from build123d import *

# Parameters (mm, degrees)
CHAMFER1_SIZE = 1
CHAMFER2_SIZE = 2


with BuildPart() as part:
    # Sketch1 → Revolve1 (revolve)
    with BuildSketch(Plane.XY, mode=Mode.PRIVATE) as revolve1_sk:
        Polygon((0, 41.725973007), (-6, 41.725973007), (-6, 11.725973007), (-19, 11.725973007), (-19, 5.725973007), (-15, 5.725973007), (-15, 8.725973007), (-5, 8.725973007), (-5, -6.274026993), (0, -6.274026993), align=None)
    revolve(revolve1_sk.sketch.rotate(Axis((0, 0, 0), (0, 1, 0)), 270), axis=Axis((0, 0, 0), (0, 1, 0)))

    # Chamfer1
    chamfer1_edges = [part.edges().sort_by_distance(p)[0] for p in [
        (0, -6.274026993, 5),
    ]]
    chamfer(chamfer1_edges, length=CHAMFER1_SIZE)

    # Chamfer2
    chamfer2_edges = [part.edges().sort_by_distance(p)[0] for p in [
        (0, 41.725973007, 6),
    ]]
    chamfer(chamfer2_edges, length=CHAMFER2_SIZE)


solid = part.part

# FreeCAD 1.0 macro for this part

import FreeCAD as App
import Part
import Sketcher
Q = App.Units.Quantity


def edges_at(feature, points):
    """Names of the edges that pass closest to the given points."""
    edges = feature.Shape.Edges
    near = lambda p: min(range(len(edges)), key=lambda i: edges[i].distToShape(Part.Vertex(*p))[0])
    return sorted({f"Edge{near(p) + 1}" for p in points})


def add_polygon(sketch, points):
    """Adds a closed chain of lines whose ends are joined by coincident constraints."""
    first, n = sketch.GeometryCount, len(points)
    for a, b in zip(points, points[1:] + points[:1]):
        sketch.addGeometry(Part.LineSegment(App.Vector(*a, 0), App.Vector(*b, 0)), False)
    for i in range(n):
        sketch.addConstraint(Sketcher.Constraint("Coincident", first + i, 2, first + (i + 1) % n, 1))

doc = App.newDocument("Part")
body = doc.addObject("PartDesign::Body", "Body")

# Sketch on XY plane
sketch1 = doc.addObject("Sketcher::SketchObject", "Sketch")
body.addObject(sketch1)
sketch1.AttachmentSupport = (doc.XY_Plane, [""])
sketch1.MapMode = "FlatFace"
add_polygon(sketch1, [(0, 41.725973), (-6, 41.725973), (-6, 11.725973), (-19, 11.725973), (-19, 5.725973), (-15, 5.725973), (-15, 8.725973), (-5, 8.725973), (-5, -6.274027), (0, -6.274027)])  # lines 0-9
sketch1.addConstraint([
    Sketcher.Constraint("Horizontal", 0),
    Sketcher.Constraint("Vertical", 1),
    Sketcher.Constraint("Horizontal", 2),
    Sketcher.Constraint("Vertical", 3),
    Sketcher.Constraint("Horizontal", 4),
    Sketcher.Constraint("Vertical", 5),
    Sketcher.Constraint("Horizontal", 6),
    Sketcher.Constraint("Vertical", 7),
    Sketcher.Constraint("Horizontal", 8),
    Sketcher.Constraint("Vertical", 9),
    Sketcher.Constraint("PointOnObject", 8, 2, -2),
    Sketcher.Constraint("Equal", 0, 3),
    Sketcher.Constraint("DistanceX", 0, 2, 0, 1, Q("6 mm")),
    Sketcher.Constraint("DistanceX", 2, 2, 2, 1, Q("13 mm")),
    Sketcher.Constraint("DistanceX", 4, 1, 4, 2, Q("4 mm")),
    Sketcher.Constraint("DistanceX", 6, 1, 6, 2, Q("10 mm")),
    Sketcher.Constraint("DistanceY", 1, 2, 1, 1, Q("30 mm")),
    Sketcher.Constraint("DistanceY", 5, 1, 5, 2, Q("3 mm")),
    Sketcher.Constraint("DistanceY", 7, 2, 7, 1, Q("15 mm")),
    Sketcher.Constraint("DistanceY", -1, 1, 0, 2, Q("41.725973 mm")),
])
revolution = doc.addObject("PartDesign::Revolution", "Revolution")
body.addObject(revolution)
revolution.Profile = sketch1
revolution.ReferenceAxis = (sketch1, ["V_Axis"])
revolution.Angle = 360
doc.recompute()

chamfer = doc.addObject("PartDesign::Chamfer", "Chamfer")
body.addObject(chamfer)
chamfer.Base = (revolution, edges_at(revolution, [(0, -6.274, 5)]))
chamfer.Size = 1
doc.recompute()

chamfer2 = doc.addObject("PartDesign::Chamfer", "Chamfer001")
body.addObject(chamfer2)
chamfer2.Base = (chamfer, edges_at(chamfer, [(0, 41.726, 6)]))
chamfer2.Size = 2

doc.recompute()
